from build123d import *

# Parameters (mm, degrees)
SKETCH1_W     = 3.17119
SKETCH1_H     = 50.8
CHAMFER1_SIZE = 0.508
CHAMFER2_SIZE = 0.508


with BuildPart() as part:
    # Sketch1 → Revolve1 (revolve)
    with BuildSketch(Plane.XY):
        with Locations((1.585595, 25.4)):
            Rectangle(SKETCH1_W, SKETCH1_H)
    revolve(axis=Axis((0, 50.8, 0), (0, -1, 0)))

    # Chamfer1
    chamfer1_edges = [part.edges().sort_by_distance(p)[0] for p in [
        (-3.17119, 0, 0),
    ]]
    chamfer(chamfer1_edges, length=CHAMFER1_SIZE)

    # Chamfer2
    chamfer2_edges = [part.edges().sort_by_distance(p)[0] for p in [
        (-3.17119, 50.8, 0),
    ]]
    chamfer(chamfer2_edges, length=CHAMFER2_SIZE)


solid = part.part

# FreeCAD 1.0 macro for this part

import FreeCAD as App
import Part
import Sketcher

V = App.Vector
Q = App.Units.Quantity


def edges_at(feature, points):
    """Names of the edges that pass closest to the given points."""
    edges = feature.Shape.Edges
    near = lambda p: min(range(len(edges)), key=lambda i: edges[i].distToShape(Part.Vertex(*p))[0])
    return sorted({f"Edge{near(p) + 1}" for p in points})


def add_polygon(sketch, points):
    """Adds a closed chain of lines whose ends are joined by coincident constraints."""
    first, n = sketch.GeometryCount, len(points)
    for a, b in zip(points, points[1:] + points[:1]):
        sketch.addGeometry(Part.LineSegment(App.Vector(*a, 0), App.Vector(*b, 0)), False)
    for i in range(n):
        sketch.addConstraint(Sketcher.Constraint("Coincident", first + i, 2, first + (i + 1) % n, 1))

doc = App.newDocument("Part")
body = doc.addObject("PartDesign::Body", "Body")

# Sketch on XY plane
sketch1 = doc.addObject("Sketcher::SketchObject", "Sketch")
body.addObject(sketch1)
sketch1.AttachmentSupport = (doc.XY_Plane, [""])
sketch1.MapMode = "FlatFace"
add_polygon(sketch1, [(0, 50.8), (0, 0), (3.2, 0), (3.2, 50.8)])  # lines 0-3
sketch1.addConstraint([
    Sketcher.Constraint("Vertical", 0),
    Sketcher.Constraint("Horizontal", 1),
    Sketcher.Constraint("Vertical", 2),
    Sketcher.Constraint("Horizontal", 3),
    Sketcher.Constraint("Coincident", 0, 2, -1, 1),
    Sketcher.Constraint("DistanceY", 0, 2, 0, 1, Q("2 in")),
    Sketcher.Constraint("DistanceX", 1, 1, 1, 2, 3.17119),
])
revolution = doc.addObject("PartDesign::Revolution", "Revolution")
body.addObject(revolution)
revolution.Profile = sketch1
revolution.ReferenceAxis = (sketch1, ["V_Axis"])
revolution.Angle = 360
doc.recompute()

chamfer = doc.addObject("PartDesign::Chamfer", "Chamfer")
body.addObject(chamfer)
chamfer.Base = (revolution, edges_at(revolution, [(-3.171, 0, 0)]))
chamfer.Size = Q("0.02 in")
doc.recompute()

chamfer2 = doc.addObject("PartDesign::Chamfer", "Chamfer001")
body.addObject(chamfer2)
chamfer2.Base = (chamfer, edges_at(chamfer, [(-3.171, 50.8, 0)]))
chamfer2.Size = Q("0.02 in")

doc.recompute()
